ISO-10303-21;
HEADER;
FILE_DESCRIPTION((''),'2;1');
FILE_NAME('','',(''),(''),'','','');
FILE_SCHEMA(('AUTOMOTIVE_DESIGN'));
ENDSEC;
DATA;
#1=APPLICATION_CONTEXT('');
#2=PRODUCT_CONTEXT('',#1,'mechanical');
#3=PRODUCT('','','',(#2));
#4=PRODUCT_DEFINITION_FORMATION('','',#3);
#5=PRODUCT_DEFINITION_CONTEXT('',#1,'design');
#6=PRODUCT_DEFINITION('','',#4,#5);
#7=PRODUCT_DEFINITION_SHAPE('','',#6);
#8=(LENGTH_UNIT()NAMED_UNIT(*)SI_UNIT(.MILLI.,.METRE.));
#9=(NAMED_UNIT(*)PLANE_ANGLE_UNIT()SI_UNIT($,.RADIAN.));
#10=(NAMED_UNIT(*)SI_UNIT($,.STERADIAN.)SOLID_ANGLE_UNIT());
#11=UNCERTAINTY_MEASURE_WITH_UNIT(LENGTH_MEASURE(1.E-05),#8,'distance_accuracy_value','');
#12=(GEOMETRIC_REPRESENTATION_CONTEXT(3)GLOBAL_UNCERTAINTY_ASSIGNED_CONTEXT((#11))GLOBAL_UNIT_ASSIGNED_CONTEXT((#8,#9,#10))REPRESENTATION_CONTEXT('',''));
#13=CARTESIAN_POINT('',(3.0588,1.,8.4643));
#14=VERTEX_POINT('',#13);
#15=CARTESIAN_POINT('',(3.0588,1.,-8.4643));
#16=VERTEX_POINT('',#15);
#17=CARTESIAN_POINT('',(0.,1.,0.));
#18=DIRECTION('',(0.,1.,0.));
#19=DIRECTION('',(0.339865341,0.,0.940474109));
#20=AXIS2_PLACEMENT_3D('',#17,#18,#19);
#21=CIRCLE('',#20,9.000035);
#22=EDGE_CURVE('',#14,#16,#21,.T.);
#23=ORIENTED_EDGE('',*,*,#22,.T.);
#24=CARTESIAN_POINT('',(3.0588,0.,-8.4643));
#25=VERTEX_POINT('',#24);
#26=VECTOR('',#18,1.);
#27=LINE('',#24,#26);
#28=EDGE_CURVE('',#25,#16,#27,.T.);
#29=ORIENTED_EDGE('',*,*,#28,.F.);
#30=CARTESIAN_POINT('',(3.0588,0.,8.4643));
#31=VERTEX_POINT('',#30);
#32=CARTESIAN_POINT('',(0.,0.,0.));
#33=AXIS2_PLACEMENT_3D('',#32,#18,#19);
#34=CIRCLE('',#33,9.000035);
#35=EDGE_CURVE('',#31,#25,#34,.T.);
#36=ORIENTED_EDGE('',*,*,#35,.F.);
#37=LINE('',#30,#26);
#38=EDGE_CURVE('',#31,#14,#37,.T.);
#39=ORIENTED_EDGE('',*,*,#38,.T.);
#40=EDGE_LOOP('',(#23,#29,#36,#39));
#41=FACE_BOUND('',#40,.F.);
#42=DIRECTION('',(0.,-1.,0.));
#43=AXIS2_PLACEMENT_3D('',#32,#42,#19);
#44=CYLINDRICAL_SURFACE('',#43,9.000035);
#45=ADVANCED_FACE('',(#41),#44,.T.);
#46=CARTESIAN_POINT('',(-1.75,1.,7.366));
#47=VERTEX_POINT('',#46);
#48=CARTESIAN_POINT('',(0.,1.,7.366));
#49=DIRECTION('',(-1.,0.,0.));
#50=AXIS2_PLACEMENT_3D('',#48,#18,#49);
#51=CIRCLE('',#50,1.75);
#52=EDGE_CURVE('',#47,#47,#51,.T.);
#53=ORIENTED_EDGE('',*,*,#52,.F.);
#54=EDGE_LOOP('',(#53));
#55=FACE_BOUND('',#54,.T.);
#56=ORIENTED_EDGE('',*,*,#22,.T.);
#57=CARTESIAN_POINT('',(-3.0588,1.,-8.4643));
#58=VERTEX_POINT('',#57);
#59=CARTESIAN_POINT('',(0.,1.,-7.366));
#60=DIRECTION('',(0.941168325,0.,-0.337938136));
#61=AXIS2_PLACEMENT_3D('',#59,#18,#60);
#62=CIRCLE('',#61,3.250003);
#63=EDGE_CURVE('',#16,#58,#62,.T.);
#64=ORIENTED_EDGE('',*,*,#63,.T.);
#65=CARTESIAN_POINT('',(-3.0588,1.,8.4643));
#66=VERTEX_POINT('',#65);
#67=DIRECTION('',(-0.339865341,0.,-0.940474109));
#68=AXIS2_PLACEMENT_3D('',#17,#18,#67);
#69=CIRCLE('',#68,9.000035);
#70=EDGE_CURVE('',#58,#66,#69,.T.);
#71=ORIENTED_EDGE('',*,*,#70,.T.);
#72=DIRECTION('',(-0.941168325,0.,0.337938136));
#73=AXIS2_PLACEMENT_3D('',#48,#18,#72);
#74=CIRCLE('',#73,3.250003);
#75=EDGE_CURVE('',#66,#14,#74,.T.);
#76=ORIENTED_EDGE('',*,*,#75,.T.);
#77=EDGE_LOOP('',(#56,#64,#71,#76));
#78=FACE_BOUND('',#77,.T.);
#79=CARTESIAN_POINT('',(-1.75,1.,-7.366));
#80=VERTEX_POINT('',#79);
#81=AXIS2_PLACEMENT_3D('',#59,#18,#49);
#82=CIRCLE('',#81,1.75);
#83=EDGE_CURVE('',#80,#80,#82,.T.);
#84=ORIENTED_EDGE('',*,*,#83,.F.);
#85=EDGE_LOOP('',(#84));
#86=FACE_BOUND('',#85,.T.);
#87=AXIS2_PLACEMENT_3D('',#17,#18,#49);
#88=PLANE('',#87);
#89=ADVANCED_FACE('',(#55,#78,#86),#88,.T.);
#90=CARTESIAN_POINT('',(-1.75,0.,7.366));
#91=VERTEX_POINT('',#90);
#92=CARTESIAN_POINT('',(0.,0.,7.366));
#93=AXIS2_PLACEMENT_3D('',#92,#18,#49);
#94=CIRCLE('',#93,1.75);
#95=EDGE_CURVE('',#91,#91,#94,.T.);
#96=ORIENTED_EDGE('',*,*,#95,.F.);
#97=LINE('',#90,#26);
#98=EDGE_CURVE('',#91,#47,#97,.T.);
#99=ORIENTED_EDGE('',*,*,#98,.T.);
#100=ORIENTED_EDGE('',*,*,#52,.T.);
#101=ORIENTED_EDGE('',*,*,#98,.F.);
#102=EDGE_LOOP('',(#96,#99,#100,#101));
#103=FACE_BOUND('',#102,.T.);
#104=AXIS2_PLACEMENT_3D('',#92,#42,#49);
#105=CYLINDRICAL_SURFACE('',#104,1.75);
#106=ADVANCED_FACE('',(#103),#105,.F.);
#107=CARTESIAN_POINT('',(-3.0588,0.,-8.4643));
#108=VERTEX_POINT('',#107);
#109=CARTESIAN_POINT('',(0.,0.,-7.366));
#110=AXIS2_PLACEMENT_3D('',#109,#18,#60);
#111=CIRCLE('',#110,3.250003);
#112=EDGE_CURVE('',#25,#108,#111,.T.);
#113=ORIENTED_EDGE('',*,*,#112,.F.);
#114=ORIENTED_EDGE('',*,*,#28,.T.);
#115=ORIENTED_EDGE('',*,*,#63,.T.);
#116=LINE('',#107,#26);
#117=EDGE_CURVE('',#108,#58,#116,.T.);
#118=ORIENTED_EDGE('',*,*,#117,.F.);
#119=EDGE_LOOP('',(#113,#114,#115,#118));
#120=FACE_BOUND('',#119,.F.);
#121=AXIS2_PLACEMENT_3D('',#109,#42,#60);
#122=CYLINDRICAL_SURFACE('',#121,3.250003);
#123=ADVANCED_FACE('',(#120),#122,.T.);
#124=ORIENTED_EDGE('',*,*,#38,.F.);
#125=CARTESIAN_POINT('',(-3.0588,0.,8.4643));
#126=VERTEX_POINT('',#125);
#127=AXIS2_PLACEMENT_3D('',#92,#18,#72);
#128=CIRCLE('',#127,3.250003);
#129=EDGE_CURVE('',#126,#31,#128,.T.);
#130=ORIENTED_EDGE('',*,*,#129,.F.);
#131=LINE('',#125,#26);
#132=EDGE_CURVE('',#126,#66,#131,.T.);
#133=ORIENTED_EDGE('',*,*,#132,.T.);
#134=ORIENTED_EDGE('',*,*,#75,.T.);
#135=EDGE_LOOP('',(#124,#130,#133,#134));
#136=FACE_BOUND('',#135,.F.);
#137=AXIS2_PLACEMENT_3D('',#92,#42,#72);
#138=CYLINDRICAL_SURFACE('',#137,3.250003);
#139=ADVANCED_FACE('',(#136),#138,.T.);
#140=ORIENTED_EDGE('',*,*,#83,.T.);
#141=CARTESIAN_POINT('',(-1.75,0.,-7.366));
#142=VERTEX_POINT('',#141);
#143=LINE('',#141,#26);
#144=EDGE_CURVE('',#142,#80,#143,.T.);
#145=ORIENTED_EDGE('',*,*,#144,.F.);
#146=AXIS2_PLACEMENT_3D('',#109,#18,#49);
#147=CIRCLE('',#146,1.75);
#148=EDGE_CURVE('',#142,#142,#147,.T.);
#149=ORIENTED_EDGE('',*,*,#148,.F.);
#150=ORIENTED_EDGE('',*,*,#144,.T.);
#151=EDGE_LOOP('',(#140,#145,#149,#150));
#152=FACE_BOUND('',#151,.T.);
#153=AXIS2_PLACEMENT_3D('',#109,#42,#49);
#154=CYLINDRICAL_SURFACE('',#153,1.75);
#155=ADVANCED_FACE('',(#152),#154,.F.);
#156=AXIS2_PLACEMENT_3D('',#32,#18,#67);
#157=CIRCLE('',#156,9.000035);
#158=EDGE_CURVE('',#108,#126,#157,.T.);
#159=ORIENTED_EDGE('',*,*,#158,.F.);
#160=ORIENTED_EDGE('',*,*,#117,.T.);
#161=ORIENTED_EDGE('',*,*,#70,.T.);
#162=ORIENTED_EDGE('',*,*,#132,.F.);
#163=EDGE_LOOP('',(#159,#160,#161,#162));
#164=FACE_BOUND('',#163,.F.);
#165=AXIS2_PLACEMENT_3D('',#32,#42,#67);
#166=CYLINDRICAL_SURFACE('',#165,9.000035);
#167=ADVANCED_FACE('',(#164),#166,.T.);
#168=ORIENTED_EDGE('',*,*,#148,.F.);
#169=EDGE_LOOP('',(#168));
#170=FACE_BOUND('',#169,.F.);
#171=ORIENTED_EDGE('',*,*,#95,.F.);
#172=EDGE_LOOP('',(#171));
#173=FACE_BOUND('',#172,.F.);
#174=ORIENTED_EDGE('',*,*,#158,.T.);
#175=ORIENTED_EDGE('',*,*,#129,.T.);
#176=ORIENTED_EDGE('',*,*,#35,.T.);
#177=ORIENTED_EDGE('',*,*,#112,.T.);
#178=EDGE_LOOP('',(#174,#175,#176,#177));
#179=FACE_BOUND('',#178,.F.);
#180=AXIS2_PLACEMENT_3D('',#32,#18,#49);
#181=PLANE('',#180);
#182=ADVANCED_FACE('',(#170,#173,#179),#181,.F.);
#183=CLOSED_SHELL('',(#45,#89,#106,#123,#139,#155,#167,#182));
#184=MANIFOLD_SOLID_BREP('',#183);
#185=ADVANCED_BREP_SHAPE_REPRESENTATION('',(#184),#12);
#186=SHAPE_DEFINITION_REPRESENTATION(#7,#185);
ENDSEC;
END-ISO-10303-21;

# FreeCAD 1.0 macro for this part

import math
import FreeCAD as App
import Part
import Sketcher
Q = App.Units.Quantity

doc = App.newDocument("Part")
params = doc.addObject("Spreadsheet::Sheet", "Params")
for row, (alias, value) in enumerate([
    ("sketch1_radius", "9 mm"),
    ("sketch1_diameter", "3.5 mm"),
    ("sketch1_radius2", "3.25 mm"),
    ("pad1_length", "1 mm"),
], start=1):
    params.set(f"A{row}", alias)
    params.set(f"B{row}", "=" + value)
    params.setAlias(f"B{row}", alias)

body = doc.addObject("PartDesign::Body", "Body")

# Sketch on XZ plane
sketch1 = body.newObject("Sketcher::SketchObject", "Sketch")
sketch1.AttachmentSupport = (doc.getObject("XZ_Plane"), [""])
sketch1.MapMode = "FlatFace"
sketch1.addGeometry([
    Part.ArcOfCircle(Part.Circle(App.Vector(0, -7.4, 0), App.Vector(0, 0, 1), 3.3), math.radians(-160), math.radians(-20)),  # 0
    Part.ArcOfCircle(Part.Circle(App.Vector(0, 0, 0), App.Vector(0, 0, 1), 9), math.radians(110), math.radians(250)),  # 1
    Part.ArcOfCircle(Part.Circle(App.Vector(0, 7.4, 0), App.Vector(0, 0, 1), 3.3), math.radians(20), math.radians(160)),  # 2
    Part.ArcOfCircle(Part.Circle(App.Vector(0, 0, 0), App.Vector(0, 0, 1), 9), math.radians(-70), math.radians(70)),  # 3
    Part.Circle(App.Vector(0, -7.4, 0), App.Vector(0, 0, 1), 1.8),  # 4
    Part.Circle(App.Vector(0, 7.4, 0), App.Vector(0, 0, 1), 1.8),  # 5
], False)
sketch1.addConstraint([
    Sketcher.Constraint("Coincident", 0, 1, 1, 2),
    Sketcher.Constraint("Coincident", 1, 1, 2, 2),
    Sketcher.Constraint("Coincident", 2, 1, 3, 2),
    Sketcher.Constraint("Coincident", 3, 1, 0, 2),
    Sketcher.Constraint("Coincident", 1, 3, -1, 1),
    Sketcher.Constraint("Coincident", 3, 3, -1, 1),
    Sketcher.Constraint("Coincident", 4, 3, 0, 3),
    Sketcher.Constraint("Coincident", 5, 3, 2, 3),
    Sketcher.Constraint("Equal", 0, 2),
    Sketcher.Constraint("Equal", 1, 3),
    Sketcher.Constraint("Equal", 4, 5),
    Sketcher.Constraint("Symmetric", 0, 3, 2, 3, -1, 1),
    Sketcher.Constraint("PointOnObject", 0, 3, -2),
    Sketcher.Constraint("Radius", 1, Q("9 mm")),
    Sketcher.Constraint("Diameter", 4, Q("3.5 mm")),
    Sketcher.Constraint("Radius", 0, Q("3.25 mm")),
    Sketcher.Constraint("DistanceY", 0, 3, -1, 1, Q("7.366 mm")),
])
sketch1.setExpression("Constraints[13]", "Params.sketch1_radius")
sketch1.setExpression("Constraints[14]", "Params.sketch1_diameter")
sketch1.setExpression("Constraints[15]", "Params.sketch1_radius2")
pad1 = body.newObject("PartDesign::Pad", "Pad")
pad1.Profile = sketch1
pad1.setExpression("Length", "Params.pad1_length")
pad1.Reversed = True

doc.recompute()
